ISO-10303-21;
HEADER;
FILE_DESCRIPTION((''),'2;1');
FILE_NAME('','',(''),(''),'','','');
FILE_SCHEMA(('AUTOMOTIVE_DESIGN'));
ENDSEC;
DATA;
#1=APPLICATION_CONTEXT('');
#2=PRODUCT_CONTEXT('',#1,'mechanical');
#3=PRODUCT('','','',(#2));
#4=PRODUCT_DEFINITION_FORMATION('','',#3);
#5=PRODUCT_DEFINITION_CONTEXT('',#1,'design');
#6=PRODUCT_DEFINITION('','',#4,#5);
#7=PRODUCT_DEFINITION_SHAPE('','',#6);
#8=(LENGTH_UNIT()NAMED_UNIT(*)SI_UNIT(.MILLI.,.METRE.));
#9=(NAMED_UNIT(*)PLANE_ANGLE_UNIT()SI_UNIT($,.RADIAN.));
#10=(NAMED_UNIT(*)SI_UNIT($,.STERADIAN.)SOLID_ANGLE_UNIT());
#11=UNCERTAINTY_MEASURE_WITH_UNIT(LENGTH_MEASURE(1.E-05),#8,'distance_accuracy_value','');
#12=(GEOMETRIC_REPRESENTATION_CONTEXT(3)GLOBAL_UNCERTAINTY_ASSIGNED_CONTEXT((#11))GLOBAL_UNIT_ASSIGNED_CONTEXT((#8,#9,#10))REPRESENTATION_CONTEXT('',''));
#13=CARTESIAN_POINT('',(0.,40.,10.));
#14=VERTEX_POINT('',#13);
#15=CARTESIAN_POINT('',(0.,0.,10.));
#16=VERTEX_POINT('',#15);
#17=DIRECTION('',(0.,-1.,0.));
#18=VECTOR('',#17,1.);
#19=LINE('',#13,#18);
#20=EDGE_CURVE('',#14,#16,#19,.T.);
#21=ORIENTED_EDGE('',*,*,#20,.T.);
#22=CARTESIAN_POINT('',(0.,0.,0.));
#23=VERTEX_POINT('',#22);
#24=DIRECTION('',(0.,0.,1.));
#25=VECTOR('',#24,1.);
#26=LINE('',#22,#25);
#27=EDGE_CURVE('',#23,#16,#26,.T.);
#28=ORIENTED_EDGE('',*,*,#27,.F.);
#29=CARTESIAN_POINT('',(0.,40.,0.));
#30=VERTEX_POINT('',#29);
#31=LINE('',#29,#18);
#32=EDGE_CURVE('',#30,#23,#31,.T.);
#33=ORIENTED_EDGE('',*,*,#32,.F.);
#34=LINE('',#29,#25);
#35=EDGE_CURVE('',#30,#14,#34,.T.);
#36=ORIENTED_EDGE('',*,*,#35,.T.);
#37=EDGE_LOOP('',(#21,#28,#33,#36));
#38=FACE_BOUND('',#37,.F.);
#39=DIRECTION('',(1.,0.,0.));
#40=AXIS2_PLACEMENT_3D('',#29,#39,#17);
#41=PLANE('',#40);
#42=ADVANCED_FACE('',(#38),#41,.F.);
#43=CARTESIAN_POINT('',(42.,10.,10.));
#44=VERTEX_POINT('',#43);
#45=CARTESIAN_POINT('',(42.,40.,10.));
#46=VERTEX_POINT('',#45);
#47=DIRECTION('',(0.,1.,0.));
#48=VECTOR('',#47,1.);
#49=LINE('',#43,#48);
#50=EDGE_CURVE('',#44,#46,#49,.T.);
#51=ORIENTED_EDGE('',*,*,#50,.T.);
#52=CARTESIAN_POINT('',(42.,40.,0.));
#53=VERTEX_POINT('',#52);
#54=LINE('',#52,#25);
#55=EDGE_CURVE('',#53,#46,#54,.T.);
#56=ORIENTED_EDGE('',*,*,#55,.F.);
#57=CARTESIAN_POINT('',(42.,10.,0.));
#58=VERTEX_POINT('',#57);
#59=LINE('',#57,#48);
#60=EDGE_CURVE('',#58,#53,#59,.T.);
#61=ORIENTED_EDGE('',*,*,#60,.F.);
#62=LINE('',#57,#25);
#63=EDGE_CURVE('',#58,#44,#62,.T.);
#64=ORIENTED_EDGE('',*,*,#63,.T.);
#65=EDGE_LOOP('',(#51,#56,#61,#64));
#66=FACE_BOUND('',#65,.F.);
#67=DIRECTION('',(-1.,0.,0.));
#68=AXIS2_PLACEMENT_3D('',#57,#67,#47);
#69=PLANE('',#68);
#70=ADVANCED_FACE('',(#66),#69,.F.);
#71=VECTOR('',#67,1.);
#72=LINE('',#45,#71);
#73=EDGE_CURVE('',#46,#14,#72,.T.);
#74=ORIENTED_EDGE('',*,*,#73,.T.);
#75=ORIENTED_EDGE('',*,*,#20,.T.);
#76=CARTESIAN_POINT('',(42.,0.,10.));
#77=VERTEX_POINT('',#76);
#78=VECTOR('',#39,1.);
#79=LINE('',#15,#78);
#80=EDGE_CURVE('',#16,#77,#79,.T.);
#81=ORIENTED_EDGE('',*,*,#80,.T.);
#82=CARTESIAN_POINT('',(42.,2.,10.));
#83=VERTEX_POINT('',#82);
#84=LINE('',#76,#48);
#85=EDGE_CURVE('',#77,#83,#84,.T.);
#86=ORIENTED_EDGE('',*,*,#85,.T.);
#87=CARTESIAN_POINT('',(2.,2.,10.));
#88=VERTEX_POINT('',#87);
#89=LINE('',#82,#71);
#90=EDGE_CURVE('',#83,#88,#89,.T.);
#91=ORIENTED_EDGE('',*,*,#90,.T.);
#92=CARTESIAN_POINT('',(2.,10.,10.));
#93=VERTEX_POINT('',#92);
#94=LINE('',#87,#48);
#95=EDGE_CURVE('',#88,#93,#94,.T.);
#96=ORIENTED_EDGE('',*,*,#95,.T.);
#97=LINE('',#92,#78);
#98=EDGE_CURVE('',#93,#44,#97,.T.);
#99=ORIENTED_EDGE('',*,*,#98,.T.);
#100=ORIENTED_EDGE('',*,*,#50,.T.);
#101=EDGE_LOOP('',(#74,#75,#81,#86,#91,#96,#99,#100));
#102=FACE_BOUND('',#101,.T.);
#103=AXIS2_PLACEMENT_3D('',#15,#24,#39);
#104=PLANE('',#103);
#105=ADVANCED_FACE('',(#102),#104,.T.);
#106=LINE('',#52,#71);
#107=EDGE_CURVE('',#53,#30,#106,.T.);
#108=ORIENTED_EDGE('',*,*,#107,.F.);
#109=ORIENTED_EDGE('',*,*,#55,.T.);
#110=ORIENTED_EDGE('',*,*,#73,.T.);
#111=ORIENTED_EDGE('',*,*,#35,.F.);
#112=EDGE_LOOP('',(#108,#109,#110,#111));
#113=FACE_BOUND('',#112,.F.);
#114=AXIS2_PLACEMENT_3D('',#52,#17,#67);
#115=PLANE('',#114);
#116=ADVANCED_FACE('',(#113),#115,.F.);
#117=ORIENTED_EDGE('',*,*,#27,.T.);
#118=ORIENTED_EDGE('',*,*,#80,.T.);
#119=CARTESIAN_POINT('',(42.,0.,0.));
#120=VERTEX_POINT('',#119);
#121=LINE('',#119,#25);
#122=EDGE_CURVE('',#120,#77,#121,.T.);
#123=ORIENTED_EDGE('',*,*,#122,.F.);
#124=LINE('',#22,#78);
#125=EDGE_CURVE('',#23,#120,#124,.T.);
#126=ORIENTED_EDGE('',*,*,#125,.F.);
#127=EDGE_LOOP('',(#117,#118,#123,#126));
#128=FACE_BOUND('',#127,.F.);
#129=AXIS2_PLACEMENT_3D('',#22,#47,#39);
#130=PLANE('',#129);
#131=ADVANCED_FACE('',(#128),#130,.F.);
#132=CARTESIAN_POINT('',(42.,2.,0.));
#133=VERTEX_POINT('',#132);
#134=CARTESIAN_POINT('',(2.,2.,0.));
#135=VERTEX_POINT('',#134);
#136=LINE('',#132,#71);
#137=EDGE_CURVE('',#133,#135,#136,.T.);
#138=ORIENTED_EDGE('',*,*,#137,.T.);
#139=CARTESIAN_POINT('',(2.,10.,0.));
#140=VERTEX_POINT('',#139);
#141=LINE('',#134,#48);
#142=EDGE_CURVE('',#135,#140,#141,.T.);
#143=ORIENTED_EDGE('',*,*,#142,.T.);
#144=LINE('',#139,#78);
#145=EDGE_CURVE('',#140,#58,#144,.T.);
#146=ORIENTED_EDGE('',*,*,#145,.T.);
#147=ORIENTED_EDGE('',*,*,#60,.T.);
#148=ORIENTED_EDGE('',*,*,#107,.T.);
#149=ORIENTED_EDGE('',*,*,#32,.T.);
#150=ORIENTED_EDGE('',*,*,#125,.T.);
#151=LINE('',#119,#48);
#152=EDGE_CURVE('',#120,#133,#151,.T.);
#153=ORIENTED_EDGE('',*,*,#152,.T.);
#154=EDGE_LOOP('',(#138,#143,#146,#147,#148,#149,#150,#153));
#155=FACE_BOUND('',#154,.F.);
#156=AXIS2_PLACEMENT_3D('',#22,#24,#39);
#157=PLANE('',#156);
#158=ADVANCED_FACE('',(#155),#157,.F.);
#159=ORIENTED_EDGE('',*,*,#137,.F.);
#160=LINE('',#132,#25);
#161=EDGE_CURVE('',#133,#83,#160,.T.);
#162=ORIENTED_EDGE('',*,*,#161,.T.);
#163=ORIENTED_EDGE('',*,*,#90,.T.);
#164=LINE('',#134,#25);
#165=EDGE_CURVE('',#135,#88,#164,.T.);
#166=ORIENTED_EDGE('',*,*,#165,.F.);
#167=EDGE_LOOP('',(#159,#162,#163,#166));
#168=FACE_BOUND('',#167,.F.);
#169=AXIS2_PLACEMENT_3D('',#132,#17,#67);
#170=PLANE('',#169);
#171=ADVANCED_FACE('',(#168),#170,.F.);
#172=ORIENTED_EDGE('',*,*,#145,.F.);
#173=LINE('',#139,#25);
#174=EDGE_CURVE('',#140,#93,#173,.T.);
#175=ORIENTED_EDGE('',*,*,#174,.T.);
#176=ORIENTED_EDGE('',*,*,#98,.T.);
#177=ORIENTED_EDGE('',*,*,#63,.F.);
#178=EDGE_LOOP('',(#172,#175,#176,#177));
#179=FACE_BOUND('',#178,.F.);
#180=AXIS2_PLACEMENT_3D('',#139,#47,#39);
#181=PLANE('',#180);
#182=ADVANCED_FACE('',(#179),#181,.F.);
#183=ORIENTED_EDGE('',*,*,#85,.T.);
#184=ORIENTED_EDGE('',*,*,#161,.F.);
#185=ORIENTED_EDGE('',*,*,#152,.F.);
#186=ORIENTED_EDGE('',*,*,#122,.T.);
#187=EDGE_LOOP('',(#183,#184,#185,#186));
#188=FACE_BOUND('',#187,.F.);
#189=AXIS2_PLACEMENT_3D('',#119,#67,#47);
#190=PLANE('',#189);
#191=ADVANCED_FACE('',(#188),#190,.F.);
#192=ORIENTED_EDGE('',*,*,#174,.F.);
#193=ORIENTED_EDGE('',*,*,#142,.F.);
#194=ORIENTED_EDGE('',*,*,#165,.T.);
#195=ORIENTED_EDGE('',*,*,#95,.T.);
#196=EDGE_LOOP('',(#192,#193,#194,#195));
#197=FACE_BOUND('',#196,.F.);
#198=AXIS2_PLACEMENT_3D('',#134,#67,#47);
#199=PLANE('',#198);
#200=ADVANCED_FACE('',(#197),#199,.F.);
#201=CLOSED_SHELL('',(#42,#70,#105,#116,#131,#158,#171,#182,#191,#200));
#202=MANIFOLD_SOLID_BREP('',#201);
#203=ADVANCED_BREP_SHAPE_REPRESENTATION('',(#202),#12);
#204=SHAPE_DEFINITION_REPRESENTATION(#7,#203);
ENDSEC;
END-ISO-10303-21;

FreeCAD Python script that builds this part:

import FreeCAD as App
import Part
import Sketcher

V = App.Vector
Q = App.Units.Quantity


def add_polygon(sketch, points):
    """Adds a closed chain of lines whose ends are joined by coincident constraints."""
    first, n = sketch.GeometryCount, len(points)
    for a, b in zip(points, points[1:] + points[:1]):
        sketch.addGeometry(Part.LineSegment(App.Vector(*a, 0), App.Vector(*b, 0)), False)
    for i in range(n):
        sketch.addConstraint(Sketcher.Constraint("Coincident", first + i, 2, first + (i + 1) % n, 1))

doc = App.newDocument("Part")
body = doc.addObject("PartDesign::Body", "Body")

# Sketch on XY plane
sketch1 = doc.addObject("Sketcher::SketchObject", "Sketch")
body.addObject(sketch1)
sketch1.AttachmentSupport = (doc.XY_Plane, [""])
sketch1.MapMode = "FlatFace"
add_polygon(sketch1, [(0, 40), (0, 0), (42, 0), (42, 2), (2, 2), (2, 10), (42, 10), (42, 40)])  # lines 0-7
sketch1.addConstraint([
    Sketcher.Constraint("Vertical", 0),
    Sketcher.Constraint("Horizontal", 1),
    Sketcher.Constraint("Vertical", 2),
    Sketcher.Constraint("Horizontal", 3),
    Sketcher.Constraint("Vertical", 4),
    Sketcher.Constraint("Horizontal", 5),
    Sketcher.Constraint("Vertical", 6),
    Sketcher.Constraint("Horizontal", 7),
    Sketcher.Constraint("Coincident", 0, 2, -1, 1),
    Sketcher.Constraint("Vertical", 2, 2, 5, 2),
    Sketcher.Constraint("Equal", 5, 0),
    Sketcher.Constraint("DistanceX", 1, 1, 1, 2, Q("42 mm")),
    Sketcher.Constraint("DistanceX", 3, 2, 3, 1, Q("40 mm")),
    Sketcher.Constraint("DistanceY", 6, 1, 6, 2, Q("30 mm")),
    Sketcher.Constraint("DistanceY", 2, 1, 2, 2, Q("2 mm")),
])
pad1 = doc.addObject("PartDesign::Pad", "Pad")
body.addObject(pad1)
pad1.Profile = sketch1
pad1.Length = 10

doc.recompute()
